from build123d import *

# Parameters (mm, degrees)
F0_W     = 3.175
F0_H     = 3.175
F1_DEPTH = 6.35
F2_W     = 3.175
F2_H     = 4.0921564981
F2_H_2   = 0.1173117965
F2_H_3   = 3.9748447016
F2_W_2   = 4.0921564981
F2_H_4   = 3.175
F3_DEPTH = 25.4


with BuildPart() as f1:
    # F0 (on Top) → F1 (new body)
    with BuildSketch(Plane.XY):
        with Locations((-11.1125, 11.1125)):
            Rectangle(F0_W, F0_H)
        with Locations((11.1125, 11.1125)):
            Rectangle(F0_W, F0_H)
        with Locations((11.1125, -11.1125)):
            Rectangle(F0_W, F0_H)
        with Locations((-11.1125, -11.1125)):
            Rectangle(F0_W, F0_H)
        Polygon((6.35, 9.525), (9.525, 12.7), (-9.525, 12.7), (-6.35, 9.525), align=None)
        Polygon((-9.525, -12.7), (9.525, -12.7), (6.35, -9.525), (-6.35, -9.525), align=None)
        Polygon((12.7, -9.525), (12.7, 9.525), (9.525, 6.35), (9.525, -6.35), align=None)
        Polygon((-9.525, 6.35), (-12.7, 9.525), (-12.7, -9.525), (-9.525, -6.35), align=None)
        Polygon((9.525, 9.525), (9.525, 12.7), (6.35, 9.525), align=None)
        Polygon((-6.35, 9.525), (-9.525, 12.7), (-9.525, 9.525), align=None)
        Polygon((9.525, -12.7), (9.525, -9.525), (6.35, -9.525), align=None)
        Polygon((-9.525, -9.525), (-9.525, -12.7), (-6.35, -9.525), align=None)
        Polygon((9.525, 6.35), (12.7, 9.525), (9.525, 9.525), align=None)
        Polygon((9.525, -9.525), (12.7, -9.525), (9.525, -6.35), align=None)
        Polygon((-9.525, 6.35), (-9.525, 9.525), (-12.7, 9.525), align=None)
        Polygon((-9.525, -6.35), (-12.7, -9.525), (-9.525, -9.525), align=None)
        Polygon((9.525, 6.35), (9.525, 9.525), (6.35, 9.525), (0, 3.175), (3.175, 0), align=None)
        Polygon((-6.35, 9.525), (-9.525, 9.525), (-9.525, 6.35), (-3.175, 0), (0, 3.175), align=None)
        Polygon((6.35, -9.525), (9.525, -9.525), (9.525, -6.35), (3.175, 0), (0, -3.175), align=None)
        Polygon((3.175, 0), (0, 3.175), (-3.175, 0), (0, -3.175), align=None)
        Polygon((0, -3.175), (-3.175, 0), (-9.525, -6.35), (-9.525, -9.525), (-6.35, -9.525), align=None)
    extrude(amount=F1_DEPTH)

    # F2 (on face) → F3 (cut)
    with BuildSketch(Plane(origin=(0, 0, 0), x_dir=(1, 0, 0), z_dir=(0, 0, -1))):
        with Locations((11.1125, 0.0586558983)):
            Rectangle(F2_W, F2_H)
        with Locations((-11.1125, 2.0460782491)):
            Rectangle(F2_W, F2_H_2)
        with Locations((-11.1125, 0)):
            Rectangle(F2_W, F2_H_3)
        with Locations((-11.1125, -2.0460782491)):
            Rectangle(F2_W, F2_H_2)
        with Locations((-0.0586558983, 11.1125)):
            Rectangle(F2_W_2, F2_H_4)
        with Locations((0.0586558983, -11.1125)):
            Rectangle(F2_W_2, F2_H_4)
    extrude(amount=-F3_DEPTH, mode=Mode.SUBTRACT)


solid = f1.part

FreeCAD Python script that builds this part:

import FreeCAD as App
import Part
import Sketcher
Q = App.Units.Quantity


def add_polygon(sketch, points):
    """Adds a closed chain of lines whose ends are joined by coincident constraints."""
    first, n = sketch.GeometryCount, len(points)
    for a, b in zip(points, points[1:] + points[:1]):
        sketch.addGeometry(Part.LineSegment(App.Vector(*a, 0), App.Vector(*b, 0)), False)
    for i in range(n):
        sketch.addConstraint(Sketcher.Constraint("Coincident", first + i, 2, first + (i + 1) % n, 1))

doc = App.newDocument("Part")
body = doc.addObject("PartDesign::Body", "Body")

# Sketch on XY plane
sketch1 = body.newObject("Sketcher::SketchObject", "Sketch")
sketch1.AttachmentSupport = (doc.getObject("XY_Plane"), [""])
sketch1.MapMode = "FlatFace"
add_polygon(sketch1, [(-13, 13), (-13, -13), (13, -13), (13, 13)])  # lines 0-3
add_polygon(sketch1, [(-10, 6), (-3, 0), (-10, -6)])  # lines 4-6
add_polygon(sketch1, [(0, -3), (6, -10), (-6, -10)])  # lines 7-9
add_polygon(sketch1, [(10, -6), (3, 0), (10, 6)])  # lines 10-12
add_polygon(sketch1, [(6, 10), (0, 3), (-6, 10)])  # lines 13-15
sketch1.addConstraint(Sketcher.Constraint("Vertical", 0))
sketch1.addConstraint(Sketcher.Constraint("Horizontal", 1))
sketch1.addConstraint(Sketcher.Constraint("Vertical", 2))
sketch1.addConstraint(Sketcher.Constraint("Horizontal", 3))
sketch1.addConstraint(Sketcher.Constraint("Vertical", 6))
sketch1.addConstraint(Sketcher.Constraint("Horizontal", 8))
sketch1.addConstraint(Sketcher.Constraint("Vertical", 12))
sketch1.addConstraint(Sketcher.Constraint("Horizontal", 15))
sketch1.addConstraint(Sketcher.Constraint("Symmetric", 0, 2, 2, 2, -1, 1))
sketch1.addConstraint(Sketcher.Constraint("Symmetric", 4, 2, 10, 2, -1, 1))
sketch1.addConstraint(Sketcher.Constraint("Symmetric", 5, 2, 11, 2, -1, 1))
sketch1.addConstraint(Sketcher.Constraint("Symmetric", 9, 2, 13, 2, -1, 1))
sketch1.addConstraint(Sketcher.Constraint("Symmetric", 7, 2, 14, 2, -1, 1))
sketch1.addConstraint(Sketcher.Constraint("PointOnObject", 4, 2, -1))
sketch1.addConstraint(Sketcher.Constraint("PointOnObject", 9, 2, -2))
sketch1.addConstraint(Sketcher.Constraint("Perpendicular", 4, 5))
sketch1.addConstraint(Sketcher.Constraint("Perpendicular", 5, 7))
sketch1.addConstraint(Sketcher.Constraint("Perpendicular", 7, 9))
sketch1.addConstraint(Sketcher.Constraint("Perpendicular", 9, 10))
sketch1.addConstraint(Sketcher.Constraint("Parallel", 11, 13))
sketch1.addConstraint(Sketcher.Constraint("Horizontal", 6, 2, 11, 2))
sketch1.addConstraint(Sketcher.Constraint("Equal", 3, 0))
sketch1.addConstraint(Sketcher.Constraint("Equal", 15, 6))
sketch1.addConstraint(Sketcher.Constraint("DistanceX", 1, 1, 1, 2, Q("1 in")))
sketch1.addConstraint(Sketcher.Constraint("DistanceX", 8, 2, 8, 1, Q("0.5 in")))
sketch1.addConstraint(Sketcher.Constraint("DistanceX", 5, 2, 10, 2, Q("0.5 in")))
sketch1.addConstraint(Sketcher.Constraint("DistanceY", 9, 2, 13, 2, Q("0.25 in")))
pad1 = body.newObject("PartDesign::Pad", "Pad")
pad1.Profile = sketch1
pad1.Length = Q("0.25 in")

# Sketch on XY plane
sketch2 = body.newObject("Sketcher::SketchObject", "Sketch001")
sketch2.AttachmentSupport = (doc.getObject("XY_Plane"), [""])
sketch2.MapMode = "FlatFace"
add_polygon(sketch2, [(9.5, -2.1), (9.5, 2), (12.7, 2), (12.7, -2.1)])  # lines 0-3
add_polygon(sketch2, [(-12.7, -2.1), (-12.7, 2.1), (-9.5, 2.1), (-9.5, -2.1)])  # lines 4-7
add_polygon(sketch2, [(-2.1, -12.7), (-2.1, -9.5), (2, -9.5), (2, -12.7)])  # lines 8-11
add_polygon(sketch2, [(-2, 9.5), (-2, 12.7), (2.1, 12.7), (2.1, 9.5)])  # lines 12-15
sketch2.addConstraint(Sketcher.Constraint("Vertical", 0))
sketch2.addConstraint(Sketcher.Constraint("Horizontal", 1))
sketch2.addConstraint(Sketcher.Constraint("Vertical", 2))
sketch2.addConstraint(Sketcher.Constraint("Horizontal", 3))
sketch2.addConstraint(Sketcher.Constraint("Vertical", 4))
sketch2.addConstraint(Sketcher.Constraint("Horizontal", 5))
sketch2.addConstraint(Sketcher.Constraint("Vertical", 6))
sketch2.addConstraint(Sketcher.Constraint("Horizontal", 7))
sketch2.addConstraint(Sketcher.Constraint("Vertical", 8))
sketch2.addConstraint(Sketcher.Constraint("Horizontal", 9))
sketch2.addConstraint(Sketcher.Constraint("Vertical", 10))
sketch2.addConstraint(Sketcher.Constraint("Horizontal", 11))
sketch2.addConstraint(Sketcher.Constraint("Vertical", 12))
sketch2.addConstraint(Sketcher.Constraint("Horizontal", 13))
sketch2.addConstraint(Sketcher.Constraint("Vertical", 14))
sketch2.addConstraint(Sketcher.Constraint("Horizontal", 15))
sketch2.addConstraint(Sketcher.Constraint("Symmetric", 2, 2, 4, 2, -1, 1))
sketch2.addConstraint(Sketcher.Constraint("Symmetric", 10, 2, 12, 2, -1, 1))
sketch2.addConstraint(Sketcher.Constraint("Symmetric", 8, 2, 14, 2, -1, 1))
sketch2.addConstraint(Sketcher.Constraint("Symmetric", 3, 2, 6, 2, -2))
sketch2.addConstraint(Sketcher.Constraint("Equal", 15, 0))
sketch2.addConstraint(Sketcher.Constraint("Equal", 7, 8))
sketch2.addConstraint(Sketcher.Constraint("DistanceX", 4, 2, 1, 2, Q("1 in")))
sketch2.addConstraint(Sketcher.Constraint("DistanceY", 10, 2, -1, 1, Q("0.5 in")))
sketch2.addConstraint(Sketcher.Constraint("DistanceX", 1, 1, 1, 2, Q("0.125 in")))
sketch2.addConstraint(Sketcher.Constraint("DistanceY", 4, 1, 4, 2, 4.209468))
sketch2.addConstraint(Sketcher.Constraint("DistanceX", 9, 1, 9, 2, 4.092156))
sketch2.addConstraint(Sketcher.Constraint("DistanceX", 8, 2, -1, 1, 2.104734))
pocket1 = body.newObject("PartDesign::Pocket", "Pocket")
pocket1.Profile = sketch2
pocket1.Length = Q("1 in")
pocket1.Reversed = True

doc.recompute()
